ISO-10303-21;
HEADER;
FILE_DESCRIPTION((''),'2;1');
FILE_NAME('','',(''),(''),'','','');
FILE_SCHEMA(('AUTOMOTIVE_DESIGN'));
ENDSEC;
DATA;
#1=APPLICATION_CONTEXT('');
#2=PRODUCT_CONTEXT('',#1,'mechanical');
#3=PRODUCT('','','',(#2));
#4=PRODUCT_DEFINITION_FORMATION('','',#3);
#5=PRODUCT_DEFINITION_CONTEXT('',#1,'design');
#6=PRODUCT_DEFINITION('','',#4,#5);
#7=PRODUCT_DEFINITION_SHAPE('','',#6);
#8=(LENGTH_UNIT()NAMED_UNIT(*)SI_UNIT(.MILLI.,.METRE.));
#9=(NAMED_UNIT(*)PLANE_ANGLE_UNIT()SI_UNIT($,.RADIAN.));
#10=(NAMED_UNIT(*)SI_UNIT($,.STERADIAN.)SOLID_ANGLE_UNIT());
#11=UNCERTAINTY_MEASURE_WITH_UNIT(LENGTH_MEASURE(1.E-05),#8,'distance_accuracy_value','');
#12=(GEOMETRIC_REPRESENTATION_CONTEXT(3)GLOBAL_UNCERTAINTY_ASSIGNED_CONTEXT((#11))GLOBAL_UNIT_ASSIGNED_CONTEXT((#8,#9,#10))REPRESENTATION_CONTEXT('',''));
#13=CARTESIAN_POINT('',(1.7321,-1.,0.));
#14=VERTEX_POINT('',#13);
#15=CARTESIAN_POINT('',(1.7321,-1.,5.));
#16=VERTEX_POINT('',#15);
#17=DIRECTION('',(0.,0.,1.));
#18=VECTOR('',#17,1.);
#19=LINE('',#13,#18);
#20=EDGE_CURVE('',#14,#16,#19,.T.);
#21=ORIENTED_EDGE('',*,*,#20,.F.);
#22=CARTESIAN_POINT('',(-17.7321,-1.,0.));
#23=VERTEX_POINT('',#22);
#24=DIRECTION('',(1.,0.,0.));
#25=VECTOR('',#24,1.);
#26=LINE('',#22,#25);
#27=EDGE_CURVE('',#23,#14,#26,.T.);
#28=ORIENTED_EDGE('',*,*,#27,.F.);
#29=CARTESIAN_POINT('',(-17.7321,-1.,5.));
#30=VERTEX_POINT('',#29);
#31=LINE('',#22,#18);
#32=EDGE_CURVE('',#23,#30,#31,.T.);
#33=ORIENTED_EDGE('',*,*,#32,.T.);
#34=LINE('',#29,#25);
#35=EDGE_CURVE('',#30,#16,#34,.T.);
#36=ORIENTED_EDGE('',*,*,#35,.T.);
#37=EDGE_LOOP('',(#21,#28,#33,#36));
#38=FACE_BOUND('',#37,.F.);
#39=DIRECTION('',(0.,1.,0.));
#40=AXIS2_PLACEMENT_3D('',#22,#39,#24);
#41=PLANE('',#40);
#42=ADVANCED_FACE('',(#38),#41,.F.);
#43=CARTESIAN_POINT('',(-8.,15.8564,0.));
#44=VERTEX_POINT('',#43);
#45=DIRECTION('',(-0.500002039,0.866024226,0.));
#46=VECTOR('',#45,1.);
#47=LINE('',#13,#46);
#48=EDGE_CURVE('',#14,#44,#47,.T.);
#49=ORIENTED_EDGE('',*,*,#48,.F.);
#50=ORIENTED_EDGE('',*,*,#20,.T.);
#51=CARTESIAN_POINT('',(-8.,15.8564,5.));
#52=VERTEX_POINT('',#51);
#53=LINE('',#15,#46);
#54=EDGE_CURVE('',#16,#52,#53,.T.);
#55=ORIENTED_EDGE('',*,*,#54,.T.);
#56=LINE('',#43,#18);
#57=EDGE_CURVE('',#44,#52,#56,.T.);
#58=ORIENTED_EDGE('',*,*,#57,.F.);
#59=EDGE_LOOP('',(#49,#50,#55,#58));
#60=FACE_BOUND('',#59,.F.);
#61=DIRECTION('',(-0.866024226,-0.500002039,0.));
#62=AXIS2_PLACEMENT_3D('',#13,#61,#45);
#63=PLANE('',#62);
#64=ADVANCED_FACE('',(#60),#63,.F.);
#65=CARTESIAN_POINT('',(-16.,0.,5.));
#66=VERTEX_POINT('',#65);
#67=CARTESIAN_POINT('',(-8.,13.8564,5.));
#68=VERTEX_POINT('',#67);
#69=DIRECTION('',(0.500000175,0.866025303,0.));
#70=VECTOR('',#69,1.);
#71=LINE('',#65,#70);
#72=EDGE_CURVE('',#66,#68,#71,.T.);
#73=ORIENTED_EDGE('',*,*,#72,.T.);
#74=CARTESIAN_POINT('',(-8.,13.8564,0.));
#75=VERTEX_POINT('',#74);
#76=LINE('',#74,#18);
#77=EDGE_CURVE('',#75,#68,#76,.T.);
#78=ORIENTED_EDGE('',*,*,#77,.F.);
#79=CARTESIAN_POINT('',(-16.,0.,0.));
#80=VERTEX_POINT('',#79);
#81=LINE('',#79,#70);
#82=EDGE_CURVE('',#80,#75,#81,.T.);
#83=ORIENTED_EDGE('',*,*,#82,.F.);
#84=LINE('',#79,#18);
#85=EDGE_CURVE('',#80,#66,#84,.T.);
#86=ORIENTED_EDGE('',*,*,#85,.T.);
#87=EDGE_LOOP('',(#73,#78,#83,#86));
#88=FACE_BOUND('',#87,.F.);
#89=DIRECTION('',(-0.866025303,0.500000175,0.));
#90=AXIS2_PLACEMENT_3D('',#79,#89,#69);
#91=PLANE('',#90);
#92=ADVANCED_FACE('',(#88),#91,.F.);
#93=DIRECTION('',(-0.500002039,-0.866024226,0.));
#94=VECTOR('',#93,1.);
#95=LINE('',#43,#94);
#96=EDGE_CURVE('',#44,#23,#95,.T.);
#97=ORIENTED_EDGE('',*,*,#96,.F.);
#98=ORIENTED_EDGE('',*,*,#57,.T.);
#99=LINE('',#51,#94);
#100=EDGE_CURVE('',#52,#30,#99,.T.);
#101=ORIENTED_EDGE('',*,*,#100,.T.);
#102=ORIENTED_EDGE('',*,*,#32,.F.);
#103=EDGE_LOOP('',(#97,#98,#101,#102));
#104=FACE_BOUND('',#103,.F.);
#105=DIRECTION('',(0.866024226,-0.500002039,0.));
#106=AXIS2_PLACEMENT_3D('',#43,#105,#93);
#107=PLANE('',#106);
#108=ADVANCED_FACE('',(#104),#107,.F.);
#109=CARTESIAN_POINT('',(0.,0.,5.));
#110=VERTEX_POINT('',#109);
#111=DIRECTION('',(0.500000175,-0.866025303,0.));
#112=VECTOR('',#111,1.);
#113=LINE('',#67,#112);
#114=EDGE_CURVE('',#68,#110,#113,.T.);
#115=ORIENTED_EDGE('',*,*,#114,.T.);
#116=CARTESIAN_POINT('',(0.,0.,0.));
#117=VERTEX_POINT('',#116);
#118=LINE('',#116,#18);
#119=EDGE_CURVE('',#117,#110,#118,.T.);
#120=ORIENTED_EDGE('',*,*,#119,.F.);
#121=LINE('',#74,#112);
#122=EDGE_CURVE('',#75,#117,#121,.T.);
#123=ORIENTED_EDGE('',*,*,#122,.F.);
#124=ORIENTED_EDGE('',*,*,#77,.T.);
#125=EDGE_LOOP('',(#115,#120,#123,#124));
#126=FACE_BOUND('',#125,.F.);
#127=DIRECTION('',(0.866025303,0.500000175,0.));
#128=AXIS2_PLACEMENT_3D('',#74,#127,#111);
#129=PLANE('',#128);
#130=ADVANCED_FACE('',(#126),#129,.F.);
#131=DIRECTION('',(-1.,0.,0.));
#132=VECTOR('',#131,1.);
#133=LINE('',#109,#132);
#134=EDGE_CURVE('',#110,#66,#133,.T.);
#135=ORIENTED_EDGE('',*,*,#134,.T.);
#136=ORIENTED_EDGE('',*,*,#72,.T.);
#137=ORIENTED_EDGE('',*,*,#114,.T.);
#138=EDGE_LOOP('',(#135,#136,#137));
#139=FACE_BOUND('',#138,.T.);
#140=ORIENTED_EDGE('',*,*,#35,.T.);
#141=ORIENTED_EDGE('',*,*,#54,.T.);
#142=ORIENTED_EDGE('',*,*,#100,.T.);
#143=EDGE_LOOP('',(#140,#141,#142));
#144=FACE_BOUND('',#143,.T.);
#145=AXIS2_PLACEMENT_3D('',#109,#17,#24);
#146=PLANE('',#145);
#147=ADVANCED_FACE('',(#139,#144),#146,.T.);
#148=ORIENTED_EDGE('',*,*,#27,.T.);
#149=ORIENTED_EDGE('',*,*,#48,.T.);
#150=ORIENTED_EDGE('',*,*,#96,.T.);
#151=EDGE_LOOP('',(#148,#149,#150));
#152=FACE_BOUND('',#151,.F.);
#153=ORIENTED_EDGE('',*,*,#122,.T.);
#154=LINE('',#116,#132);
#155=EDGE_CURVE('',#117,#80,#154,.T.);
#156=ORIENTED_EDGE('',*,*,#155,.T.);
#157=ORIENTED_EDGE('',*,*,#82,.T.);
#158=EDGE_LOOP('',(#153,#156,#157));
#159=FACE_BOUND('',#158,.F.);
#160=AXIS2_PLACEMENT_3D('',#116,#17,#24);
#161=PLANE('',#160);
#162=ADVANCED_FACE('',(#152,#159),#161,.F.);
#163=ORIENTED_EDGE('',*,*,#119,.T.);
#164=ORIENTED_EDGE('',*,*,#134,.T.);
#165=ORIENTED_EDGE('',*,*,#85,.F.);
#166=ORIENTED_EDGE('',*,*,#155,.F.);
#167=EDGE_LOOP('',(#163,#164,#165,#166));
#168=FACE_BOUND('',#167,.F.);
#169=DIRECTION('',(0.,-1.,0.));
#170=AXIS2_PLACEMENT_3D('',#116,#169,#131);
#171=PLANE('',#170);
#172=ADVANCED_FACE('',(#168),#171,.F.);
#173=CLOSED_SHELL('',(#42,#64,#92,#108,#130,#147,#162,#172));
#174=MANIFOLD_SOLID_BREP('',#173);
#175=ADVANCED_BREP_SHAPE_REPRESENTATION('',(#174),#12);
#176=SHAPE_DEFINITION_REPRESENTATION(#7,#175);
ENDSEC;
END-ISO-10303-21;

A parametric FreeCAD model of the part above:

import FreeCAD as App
import Part
import Sketcher
from FreeCAD import Vector


def add_polygon(sketch, points):
    """Adds a closed chain of lines whose ends are joined by coincident constraints."""
    first, n = sketch.GeometryCount, len(points)
    for a, b in zip(points, points[1:] + points[:1]):
        sketch.addGeometry(Part.LineSegment(App.Vector(*a, 0), App.Vector(*b, 0)), False)
    for i in range(n):
        sketch.addConstraint(Sketcher.Constraint("Coincident", first + i, 2, first + (i + 1) % n, 1))

doc = App.newDocument("Part")
body = doc.addObject("PartDesign::Body", "Body")

sketch1 = doc.addObject("Sketcher::SketchObject", "Sketch")
body.addObject(sketch1)
sketch1.AttachmentSupport = (doc.XY_Plane, [""])
sketch1.MapMode = "FlatFace"
add_polygon(sketch1, [(1.7321, -1), (-8, 15.8564), (-17.7321, -1)])
add_polygon(sketch1, [(-8, 13.8564), (0, 0), (-16, 0)])
sketch1.addConstraint([
    Sketcher.Constraint("Horizontal", 2),
    Sketcher.Constraint("Horizontal", 4),
    Sketcher.Constraint("Coincident", 3, 2, -1, 1),
    Sketcher.Constraint("Parallel", 0, 3),
    Sketcher.Constraint("Parallel", 1, 5),
    Sketcher.Constraint("Vertical", 0, 2, 5, 2),
    Sketcher.Constraint("Equal", 0, 1),
    Sketcher.Constraint("DistanceX", 4, 2, 4, 1, 16.0),
    Sketcher.Constraint("Distance", 3, 16.0),
    Sketcher.Constraint("DistanceY", 1, 2, -1, 1, 1.0),
    Sketcher.Constraint("DistanceY", 5, 2, 0, 2, 2.0),
])
pad1 = doc.addObject("PartDesign::Pad", "Pad")
body.addObject(pad1)
pad1.Profile = sketch1
pad1.Length = 5

doc.recompute()
